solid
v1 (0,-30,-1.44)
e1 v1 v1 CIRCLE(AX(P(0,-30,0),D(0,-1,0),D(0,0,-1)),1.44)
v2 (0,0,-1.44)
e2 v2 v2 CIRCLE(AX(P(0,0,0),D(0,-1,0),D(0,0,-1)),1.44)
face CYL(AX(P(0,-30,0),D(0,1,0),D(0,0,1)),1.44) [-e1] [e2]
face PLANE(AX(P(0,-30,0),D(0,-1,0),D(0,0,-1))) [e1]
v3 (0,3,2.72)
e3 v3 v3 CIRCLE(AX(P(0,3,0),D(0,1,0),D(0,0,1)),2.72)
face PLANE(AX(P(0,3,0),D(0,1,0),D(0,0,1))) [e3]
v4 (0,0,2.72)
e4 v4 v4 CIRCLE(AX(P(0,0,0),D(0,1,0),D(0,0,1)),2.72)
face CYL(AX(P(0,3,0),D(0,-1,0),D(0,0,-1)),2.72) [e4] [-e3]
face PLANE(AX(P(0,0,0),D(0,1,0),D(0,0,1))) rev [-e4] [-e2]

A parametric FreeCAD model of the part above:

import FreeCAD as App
import Part
import Sketcher
Q = App.Units.Quantity

doc = App.newDocument("Part")
body = doc.addObject("PartDesign::Body", "Body")

sketch1 = doc.addObject("Sketcher::SketchObject", "Sketch")
body.addObject(sketch1)
sketch1.AttachmentSupport = (doc.XZ_Plane, [""])
sketch1.MapMode = "FlatFace"
sketch1.addGeometry(Part.Circle(App.Vector(0, 0, 0), App.Vector(0, 0, 1), 2.7), False)
sketch1.addConstraint(Sketcher.Constraint("Coincident", 0, 3, -1, 1))
sketch1.addConstraint(Sketcher.Constraint("Diameter", 0, Q("5.44 mm")))
pad1 = doc.addObject("PartDesign::Pad", "Pad")
body.addObject(pad1)
pad1.Profile = sketch1
pad1.Length = 3
pad1.Reversed = True

sketch2 = doc.addObject("Sketcher::SketchObject", "Sketch001")
body.addObject(sketch2)
sketch2.AttachmentSupport = (doc.XZ_Plane, [""])
sketch2.MapMode = "FlatFace"
sketch2.addGeometry(Part.Circle(App.Vector(0, 0, 0), App.Vector(0, 0, 1), 1.4), False)
sketch2.addConstraint(Sketcher.Constraint("Coincident", 0, 3, -1, 1))
sketch2.addConstraint(Sketcher.Constraint("Diameter", 0, Q("2.88 mm")))
pad2 = doc.addObject("PartDesign::Pad", "Pad001")
body.addObject(pad2)
pad2.Profile = sketch2
pad2.Length = 30

doc.recompute()
